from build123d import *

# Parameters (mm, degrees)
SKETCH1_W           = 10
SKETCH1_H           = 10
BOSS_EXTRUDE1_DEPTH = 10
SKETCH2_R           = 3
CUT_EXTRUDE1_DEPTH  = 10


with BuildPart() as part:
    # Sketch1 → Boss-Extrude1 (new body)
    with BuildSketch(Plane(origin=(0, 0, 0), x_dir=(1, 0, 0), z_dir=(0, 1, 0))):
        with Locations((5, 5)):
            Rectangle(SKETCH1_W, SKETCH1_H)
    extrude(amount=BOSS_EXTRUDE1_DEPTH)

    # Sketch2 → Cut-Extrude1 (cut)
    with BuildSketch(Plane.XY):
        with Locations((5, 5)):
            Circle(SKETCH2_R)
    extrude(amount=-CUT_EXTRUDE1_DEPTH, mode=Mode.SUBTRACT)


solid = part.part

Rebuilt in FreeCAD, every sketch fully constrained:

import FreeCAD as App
import Part
import Sketcher

doc = App.newDocument("Part")
body = doc.addObject("PartDesign::Body", "Body")

# Sketch on XZ plane
sketch1 = doc.addObject("Sketcher::SketchObject", "Sketch")
body.addObject(sketch1)
sketch1.AttachmentSupport = (doc.XZ_Plane, [""])
sketch1.MapMode = "FlatFace"
sketch1.addGeometry([
    Part.LineSegment(App.Vector(0, -10, 0), App.Vector(0, 0, 0)),
    Part.LineSegment(App.Vector(0, 0, 0), App.Vector(10, 0, 0)),
    Part.LineSegment(App.Vector(10, 0, 0), App.Vector(10, -10, 0)),
    Part.LineSegment(App.Vector(10, -10, 0), App.Vector(0, -10, 0)),
], False)
sketch1.addConstraint([
    Sketcher.Constraint("Coincident", 0, 2, 1, 1),
    Sketcher.Constraint("Coincident", 1, 2, 2, 1),
    Sketcher.Constraint("Coincident", 2, 2, 3, 1),
    Sketcher.Constraint("Coincident", 3, 2, 0, 1),
    Sketcher.Constraint("Vertical", 0),
    Sketcher.Constraint("Horizontal", 1),
    Sketcher.Constraint("Vertical", 2),
    Sketcher.Constraint("Horizontal", 3),
    Sketcher.Constraint("Coincident", 0, 2, -1, 1),
    Sketcher.Constraint("Equal", 3, 0),
    Sketcher.Constraint("DistanceX", 1, 1, 1, 2, 10.0),
])
pad1 = doc.addObject("PartDesign::Pad", "Pad")
body.addObject(pad1)
pad1.Profile = sketch1
pad1.Length = 10
pad1.Reversed = True

# Sketch on XY plane
sketch2 = doc.addObject("Sketcher::SketchObject", "Sketch001")
body.addObject(sketch2)
sketch2.AttachmentSupport = (doc.XY_Plane, [""])
sketch2.MapMode = "FlatFace"
sketch2.addGeometry(Part.Circle(App.Vector(5, 5, 0), App.Vector(0, 0, 1), 3), False)
sketch2.addConstraint([
    Sketcher.Constraint("Diameter", 0, 6.0),
    Sketcher.Constraint("DistanceX", -1, 1, 0, 3, 5.0),
    Sketcher.Constraint("DistanceY", -1, 1, 0, 3, 5.0),
])
pocket1 = doc.addObject("PartDesign::Pocket", "Pocket")
body.addObject(pocket1)
pocket1.Profile = sketch2
pocket1.Length = 10

doc.recompute()
